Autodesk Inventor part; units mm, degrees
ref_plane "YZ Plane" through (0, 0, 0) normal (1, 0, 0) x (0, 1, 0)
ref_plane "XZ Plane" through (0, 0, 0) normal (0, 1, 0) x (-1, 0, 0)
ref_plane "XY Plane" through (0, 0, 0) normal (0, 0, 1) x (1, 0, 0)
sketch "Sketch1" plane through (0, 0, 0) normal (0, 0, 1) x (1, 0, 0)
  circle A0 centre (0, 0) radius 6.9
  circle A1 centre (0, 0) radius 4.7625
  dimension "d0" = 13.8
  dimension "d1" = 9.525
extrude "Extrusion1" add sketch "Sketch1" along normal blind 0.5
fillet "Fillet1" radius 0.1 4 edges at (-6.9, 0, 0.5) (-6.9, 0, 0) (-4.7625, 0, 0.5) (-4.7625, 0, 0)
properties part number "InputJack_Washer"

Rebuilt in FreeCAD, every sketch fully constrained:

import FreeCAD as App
import Part
import Sketcher


def edges_at(feature, points):
    """Names of the edges that pass closest to the given points."""
    edges = feature.Shape.Edges
    near = lambda p: min(range(len(edges)), key=lambda i: edges[i].distToShape(Part.Vertex(*p))[0])
    return sorted({f"Edge{near(p) + 1}" for p in points})

doc = App.newDocument("Part")
body = doc.addObject("PartDesign::Body", "Body")

# Sketch on XY plane
sketch1 = body.newObject("Sketcher::SketchObject", "Sketch")
sketch1.AttachmentSupport = (doc.getObject("XY_Plane"), [""])
sketch1.MapMode = "FlatFace"
sketch1.addGeometry([
    Part.Circle(App.Vector(0, 0, 0), App.Vector(0, 0, 1), 6.9),
    Part.Circle(App.Vector(0, 0, 0), App.Vector(0, 0, 1), 4.8),
], False)
sketch1.addConstraint([
    Sketcher.Constraint("Coincident", 0, 3, -1, 1),
    Sketcher.Constraint("Coincident", 1, 3, -1, 1),
    Sketcher.Constraint("Diameter", 0, 13.8),
    Sketcher.Constraint("Diameter", 1, 9.525),
])
pad1 = body.newObject("PartDesign::Pad", "Pad")
pad1.Profile = sketch1
pad1.Length = 0.5
doc.recompute()

fillet = body.newObject("PartDesign::Fillet", "Fillet")
fillet.Base = (pad1, edges_at(pad1, [
    (-6.9, 0, 0.5),
    (-6.9, 0, 0),
    (-4.763, 0, 0.5),
    (-4.763, 0, 0),
]))
fillet.Radius = 0.1

doc.recompute()
